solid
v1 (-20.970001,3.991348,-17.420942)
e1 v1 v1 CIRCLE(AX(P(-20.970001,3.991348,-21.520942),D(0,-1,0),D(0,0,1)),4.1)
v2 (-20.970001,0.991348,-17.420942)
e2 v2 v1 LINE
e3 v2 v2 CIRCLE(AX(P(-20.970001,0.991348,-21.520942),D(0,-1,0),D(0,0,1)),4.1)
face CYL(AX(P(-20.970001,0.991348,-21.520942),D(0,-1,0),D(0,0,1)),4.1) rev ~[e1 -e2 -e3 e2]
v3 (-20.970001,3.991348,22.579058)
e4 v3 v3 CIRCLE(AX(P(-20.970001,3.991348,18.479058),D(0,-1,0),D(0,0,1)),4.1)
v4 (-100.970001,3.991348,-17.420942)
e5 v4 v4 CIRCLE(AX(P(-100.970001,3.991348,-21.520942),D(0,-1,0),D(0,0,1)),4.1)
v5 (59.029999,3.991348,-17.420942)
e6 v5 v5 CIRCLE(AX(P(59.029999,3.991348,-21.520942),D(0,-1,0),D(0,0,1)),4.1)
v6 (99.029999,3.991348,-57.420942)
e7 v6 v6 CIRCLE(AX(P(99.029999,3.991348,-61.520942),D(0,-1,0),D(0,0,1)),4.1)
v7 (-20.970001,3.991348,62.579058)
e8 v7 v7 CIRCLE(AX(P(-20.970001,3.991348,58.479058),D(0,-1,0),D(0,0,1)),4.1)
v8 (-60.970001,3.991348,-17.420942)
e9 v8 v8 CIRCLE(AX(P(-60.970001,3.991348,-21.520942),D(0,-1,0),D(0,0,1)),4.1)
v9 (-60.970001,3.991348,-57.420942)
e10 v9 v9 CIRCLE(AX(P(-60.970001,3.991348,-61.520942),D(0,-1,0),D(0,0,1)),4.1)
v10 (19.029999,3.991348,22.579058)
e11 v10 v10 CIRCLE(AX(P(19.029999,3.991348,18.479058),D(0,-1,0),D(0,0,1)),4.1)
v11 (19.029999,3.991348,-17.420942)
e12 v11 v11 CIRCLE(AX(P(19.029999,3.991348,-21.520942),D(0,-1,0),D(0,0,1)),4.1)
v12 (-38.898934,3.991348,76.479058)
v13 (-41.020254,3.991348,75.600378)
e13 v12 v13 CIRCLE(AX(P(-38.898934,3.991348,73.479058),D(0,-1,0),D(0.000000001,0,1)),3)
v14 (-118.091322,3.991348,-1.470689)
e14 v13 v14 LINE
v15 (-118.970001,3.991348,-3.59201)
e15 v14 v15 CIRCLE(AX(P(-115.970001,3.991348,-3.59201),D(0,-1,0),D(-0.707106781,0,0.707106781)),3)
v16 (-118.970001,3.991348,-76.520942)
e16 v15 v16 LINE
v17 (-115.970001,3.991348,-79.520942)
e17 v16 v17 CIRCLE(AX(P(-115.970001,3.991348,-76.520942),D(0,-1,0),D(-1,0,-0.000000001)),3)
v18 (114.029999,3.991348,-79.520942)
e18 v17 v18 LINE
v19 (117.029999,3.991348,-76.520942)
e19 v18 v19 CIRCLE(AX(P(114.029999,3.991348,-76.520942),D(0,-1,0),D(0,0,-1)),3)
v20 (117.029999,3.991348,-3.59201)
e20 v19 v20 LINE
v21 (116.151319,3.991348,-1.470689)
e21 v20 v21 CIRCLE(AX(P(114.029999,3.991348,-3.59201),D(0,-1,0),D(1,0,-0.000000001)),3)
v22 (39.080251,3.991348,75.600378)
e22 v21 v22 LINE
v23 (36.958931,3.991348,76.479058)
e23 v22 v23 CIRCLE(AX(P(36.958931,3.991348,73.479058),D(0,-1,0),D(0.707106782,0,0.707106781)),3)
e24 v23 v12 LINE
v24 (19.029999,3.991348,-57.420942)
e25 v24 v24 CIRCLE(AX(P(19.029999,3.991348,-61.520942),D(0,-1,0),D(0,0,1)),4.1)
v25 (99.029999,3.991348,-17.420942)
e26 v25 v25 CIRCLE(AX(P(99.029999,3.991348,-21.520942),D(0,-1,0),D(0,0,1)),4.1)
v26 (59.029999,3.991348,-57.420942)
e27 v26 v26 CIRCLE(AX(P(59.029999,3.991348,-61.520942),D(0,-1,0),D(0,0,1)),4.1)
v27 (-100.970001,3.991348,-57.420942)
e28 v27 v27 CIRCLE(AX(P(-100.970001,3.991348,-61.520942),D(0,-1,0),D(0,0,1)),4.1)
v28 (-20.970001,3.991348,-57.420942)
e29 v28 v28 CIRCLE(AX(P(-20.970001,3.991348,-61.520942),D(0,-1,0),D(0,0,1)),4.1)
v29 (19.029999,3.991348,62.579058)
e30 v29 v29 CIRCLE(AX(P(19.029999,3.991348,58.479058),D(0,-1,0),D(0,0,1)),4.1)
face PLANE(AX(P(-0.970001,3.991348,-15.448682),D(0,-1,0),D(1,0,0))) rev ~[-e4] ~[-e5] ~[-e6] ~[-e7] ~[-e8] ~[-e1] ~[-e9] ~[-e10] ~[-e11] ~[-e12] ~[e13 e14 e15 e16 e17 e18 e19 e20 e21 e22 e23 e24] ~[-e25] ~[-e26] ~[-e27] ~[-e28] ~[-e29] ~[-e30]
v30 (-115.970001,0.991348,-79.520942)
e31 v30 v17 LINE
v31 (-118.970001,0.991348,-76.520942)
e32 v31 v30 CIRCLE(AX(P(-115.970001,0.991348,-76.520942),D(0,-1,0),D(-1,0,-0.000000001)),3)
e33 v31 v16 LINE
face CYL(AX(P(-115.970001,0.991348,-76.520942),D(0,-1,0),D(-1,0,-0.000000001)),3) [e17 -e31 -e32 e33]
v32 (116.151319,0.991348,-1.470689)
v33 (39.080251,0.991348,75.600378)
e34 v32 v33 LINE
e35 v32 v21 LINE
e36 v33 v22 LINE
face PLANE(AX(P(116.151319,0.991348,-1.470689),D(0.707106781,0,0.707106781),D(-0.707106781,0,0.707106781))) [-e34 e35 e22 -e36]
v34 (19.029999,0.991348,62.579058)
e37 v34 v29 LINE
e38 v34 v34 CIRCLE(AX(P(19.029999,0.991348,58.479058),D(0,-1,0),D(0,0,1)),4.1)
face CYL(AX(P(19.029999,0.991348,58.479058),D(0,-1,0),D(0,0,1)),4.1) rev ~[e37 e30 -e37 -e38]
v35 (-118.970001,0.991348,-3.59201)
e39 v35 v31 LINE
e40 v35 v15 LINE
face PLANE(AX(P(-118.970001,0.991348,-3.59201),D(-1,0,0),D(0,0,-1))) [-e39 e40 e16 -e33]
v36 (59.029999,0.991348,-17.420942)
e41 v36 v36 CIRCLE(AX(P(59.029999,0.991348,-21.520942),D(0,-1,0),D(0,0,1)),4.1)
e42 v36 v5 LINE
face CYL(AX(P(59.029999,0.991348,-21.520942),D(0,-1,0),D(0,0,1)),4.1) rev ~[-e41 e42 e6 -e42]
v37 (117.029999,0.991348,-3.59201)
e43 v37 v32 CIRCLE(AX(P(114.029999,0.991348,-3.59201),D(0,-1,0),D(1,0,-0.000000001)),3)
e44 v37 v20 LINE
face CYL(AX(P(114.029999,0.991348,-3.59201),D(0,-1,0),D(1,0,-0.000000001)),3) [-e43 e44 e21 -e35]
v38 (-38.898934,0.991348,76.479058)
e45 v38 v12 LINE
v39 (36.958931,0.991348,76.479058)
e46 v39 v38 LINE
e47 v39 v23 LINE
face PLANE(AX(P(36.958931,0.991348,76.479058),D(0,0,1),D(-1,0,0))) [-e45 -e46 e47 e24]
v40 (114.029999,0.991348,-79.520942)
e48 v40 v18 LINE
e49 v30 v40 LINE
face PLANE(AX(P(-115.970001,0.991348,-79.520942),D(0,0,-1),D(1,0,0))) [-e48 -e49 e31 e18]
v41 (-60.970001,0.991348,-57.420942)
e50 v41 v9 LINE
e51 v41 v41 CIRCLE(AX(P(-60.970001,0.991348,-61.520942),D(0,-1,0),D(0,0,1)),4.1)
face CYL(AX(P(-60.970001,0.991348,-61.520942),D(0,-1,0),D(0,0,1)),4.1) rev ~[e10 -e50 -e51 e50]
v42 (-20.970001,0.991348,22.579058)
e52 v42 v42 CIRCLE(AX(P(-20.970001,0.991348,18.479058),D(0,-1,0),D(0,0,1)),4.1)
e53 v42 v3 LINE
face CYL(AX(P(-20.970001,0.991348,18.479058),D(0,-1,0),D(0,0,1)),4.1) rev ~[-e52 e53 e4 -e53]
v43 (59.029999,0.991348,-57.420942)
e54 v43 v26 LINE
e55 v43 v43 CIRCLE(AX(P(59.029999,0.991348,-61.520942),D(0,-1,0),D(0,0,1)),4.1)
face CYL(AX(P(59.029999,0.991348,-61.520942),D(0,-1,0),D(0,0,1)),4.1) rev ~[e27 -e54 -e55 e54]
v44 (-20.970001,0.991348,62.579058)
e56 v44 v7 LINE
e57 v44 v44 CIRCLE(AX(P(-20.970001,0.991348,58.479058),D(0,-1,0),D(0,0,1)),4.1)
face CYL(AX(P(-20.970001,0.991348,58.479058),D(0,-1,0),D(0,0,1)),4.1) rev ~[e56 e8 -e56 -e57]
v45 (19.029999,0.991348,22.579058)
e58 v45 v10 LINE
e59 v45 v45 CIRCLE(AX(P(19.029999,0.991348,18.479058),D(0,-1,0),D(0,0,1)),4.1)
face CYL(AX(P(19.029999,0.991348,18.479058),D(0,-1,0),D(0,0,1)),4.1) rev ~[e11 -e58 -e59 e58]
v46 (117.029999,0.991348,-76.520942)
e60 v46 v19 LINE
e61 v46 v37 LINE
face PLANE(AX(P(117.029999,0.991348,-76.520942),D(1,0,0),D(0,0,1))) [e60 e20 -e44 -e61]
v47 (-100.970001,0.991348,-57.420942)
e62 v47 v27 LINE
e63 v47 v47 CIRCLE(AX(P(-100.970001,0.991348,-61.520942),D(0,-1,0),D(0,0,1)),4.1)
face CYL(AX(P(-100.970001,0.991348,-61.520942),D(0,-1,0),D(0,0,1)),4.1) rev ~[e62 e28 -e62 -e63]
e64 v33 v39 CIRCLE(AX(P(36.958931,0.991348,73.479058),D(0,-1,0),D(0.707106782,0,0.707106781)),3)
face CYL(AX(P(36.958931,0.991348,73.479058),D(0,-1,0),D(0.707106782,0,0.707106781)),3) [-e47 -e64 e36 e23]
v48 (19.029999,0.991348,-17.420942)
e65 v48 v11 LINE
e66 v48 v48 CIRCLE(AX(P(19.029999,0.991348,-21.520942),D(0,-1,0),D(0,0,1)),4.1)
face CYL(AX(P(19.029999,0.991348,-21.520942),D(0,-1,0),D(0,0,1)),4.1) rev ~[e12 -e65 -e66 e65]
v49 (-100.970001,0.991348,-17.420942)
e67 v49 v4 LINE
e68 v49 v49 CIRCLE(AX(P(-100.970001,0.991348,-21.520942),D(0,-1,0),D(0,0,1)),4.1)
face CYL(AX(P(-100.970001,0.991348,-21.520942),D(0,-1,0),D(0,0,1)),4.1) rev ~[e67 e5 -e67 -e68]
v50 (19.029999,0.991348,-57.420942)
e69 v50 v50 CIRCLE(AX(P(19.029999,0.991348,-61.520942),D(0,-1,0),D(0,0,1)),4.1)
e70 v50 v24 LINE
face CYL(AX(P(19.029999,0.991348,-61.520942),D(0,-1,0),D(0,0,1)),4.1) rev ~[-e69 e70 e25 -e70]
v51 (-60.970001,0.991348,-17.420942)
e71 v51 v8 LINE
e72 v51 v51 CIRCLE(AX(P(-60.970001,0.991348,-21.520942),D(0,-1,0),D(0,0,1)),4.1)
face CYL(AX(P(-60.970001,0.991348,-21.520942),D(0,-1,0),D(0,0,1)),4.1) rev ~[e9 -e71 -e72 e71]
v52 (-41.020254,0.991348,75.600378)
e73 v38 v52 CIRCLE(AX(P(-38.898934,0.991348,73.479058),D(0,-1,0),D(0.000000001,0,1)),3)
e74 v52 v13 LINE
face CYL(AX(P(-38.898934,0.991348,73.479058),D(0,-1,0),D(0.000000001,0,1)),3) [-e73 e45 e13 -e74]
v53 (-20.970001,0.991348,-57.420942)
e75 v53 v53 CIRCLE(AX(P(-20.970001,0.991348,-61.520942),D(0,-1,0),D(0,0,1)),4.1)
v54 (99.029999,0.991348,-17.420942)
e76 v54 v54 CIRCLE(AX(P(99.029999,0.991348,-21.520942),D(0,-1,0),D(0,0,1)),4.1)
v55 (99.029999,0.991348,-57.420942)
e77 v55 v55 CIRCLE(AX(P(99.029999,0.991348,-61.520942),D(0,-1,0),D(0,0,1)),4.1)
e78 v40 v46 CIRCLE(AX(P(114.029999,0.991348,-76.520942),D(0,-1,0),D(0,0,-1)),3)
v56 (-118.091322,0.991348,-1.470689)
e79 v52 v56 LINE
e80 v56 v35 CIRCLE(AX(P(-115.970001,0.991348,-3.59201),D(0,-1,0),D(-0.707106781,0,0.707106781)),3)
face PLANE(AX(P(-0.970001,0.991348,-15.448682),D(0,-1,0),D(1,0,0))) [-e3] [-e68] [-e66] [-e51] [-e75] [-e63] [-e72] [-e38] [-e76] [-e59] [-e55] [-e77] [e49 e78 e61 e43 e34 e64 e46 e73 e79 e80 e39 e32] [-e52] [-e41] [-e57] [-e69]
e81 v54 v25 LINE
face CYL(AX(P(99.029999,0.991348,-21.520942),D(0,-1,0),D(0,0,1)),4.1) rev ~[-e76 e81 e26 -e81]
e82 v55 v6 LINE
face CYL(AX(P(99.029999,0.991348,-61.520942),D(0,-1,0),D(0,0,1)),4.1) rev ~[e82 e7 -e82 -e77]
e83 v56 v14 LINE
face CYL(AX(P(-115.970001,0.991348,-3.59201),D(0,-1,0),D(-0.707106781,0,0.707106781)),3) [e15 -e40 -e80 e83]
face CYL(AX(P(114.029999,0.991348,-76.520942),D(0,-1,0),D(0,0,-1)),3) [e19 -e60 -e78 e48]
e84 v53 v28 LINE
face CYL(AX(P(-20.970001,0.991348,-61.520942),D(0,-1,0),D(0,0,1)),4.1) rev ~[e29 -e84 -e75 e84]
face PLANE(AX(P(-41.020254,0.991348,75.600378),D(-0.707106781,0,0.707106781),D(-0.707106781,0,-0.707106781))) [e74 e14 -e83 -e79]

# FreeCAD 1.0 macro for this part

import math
import FreeCAD as App
import Part
import Sketcher
Q = App.Units.Quantity

doc = App.newDocument("Part")
body = doc.addObject("PartDesign::Body", "Body")

# Sketch on XZ plane
sketch1 = body.newObject("Sketcher::SketchObject", "Sketch")
sketch1.AttachmentSupport = (doc.getObject("XZ_Plane"), [""])
sketch1.MapMode = "FlatFace"
sketch1.AttachmentOffset = App.Placement(App.Vector(0, 0, -0.991348), App.Rotation())
sketch1.addGeometry([
    Part.LineSegment(App.Vector(37, 76.5, 0), App.Vector(-38.9, 76.5, 0)),  # 0
    Part.ArcOfCircle(Part.Circle(App.Vector(-38.9, 73.5, 0), App.Vector(0, 0, 1), 3), math.radians(90), math.radians(135)),  # 1
    Part.LineSegment(App.Vector(-41, 75.6, 0), App.Vector(-118.1, -1.5, 0)),  # 2
    Part.ArcOfCircle(Part.Circle(App.Vector(-116, -3.6, 0), App.Vector(0, 0, 1), 3), math.radians(135), math.radians(180)),  # 3
    Part.LineSegment(App.Vector(-119, -3.6, 0), App.Vector(-119, -76.5, 0)),  # 4
    Part.ArcOfCircle(Part.Circle(App.Vector(-116, -76.5, 0), App.Vector(0, 0, 1), 3), math.radians(-180), math.radians(-90)),  # 5
    Part.LineSegment(App.Vector(-116, -79.5, 0), App.Vector(114, -79.5, 0)),  # 6
    Part.ArcOfCircle(Part.Circle(App.Vector(114, -76.5, 0), App.Vector(0, 0, 1), 3), math.radians(-90), math.radians(0)),  # 7
    Part.LineSegment(App.Vector(117, -76.5, 0), App.Vector(117, -3.6, 0)),  # 8
    Part.ArcOfCircle(Part.Circle(App.Vector(114, -3.6, 0), App.Vector(0, 0, 1), 3), math.radians(0), math.radians(45)),  # 9
    Part.LineSegment(App.Vector(116.2, -1.5, 0), App.Vector(39.1, 75.6, 0)),  # 10
    Part.ArcOfCircle(Part.Circle(App.Vector(37, 73.5, 0), App.Vector(0, 0, 1), 3), math.radians(45), math.radians(90)),  # 11
    Part.Circle(App.Vector(-101, -61.5, 0), App.Vector(0, 0, 1), 4.1),  # 12
    Part.Circle(App.Vector(-61, -61.5, 0), App.Vector(0, 0, 1), 4.1),  # 13
    Part.Circle(App.Vector(-21, -61.5, 0), App.Vector(0, 0, 1), 4.1),  # 14
    Part.Circle(App.Vector(-101, -21.5, 0), App.Vector(0, 0, 1), 4.1),  # 15
    Part.Circle(App.Vector(-61, -21.5, 0), App.Vector(0, 0, 1), 4.1),  # 16
    Part.Circle(App.Vector(-21, -21.5, 0), App.Vector(0, 0, 1), 4.1),  # 17
    Part.Circle(App.Vector(19, -61.5, 0), App.Vector(0, 0, 1), 4.1),  # 18
    Part.Circle(App.Vector(59, -61.5, 0), App.Vector(0, 0, 1), 4.1),  # 19
    Part.Circle(App.Vector(99, -61.5, 0), App.Vector(0, 0, 1), 4.1),  # 20
    Part.Circle(App.Vector(19, -21.5, 0), App.Vector(0, 0, 1), 4.1),  # 21
    Part.Circle(App.Vector(59, -21.5, 0), App.Vector(0, 0, 1), 4.1),  # 22
    Part.Circle(App.Vector(99, -21.5, 0), App.Vector(0, 0, 1), 4.1),  # 23
    Part.Circle(App.Vector(-21, 18.5, 0), App.Vector(0, 0, 1), 4.1),  # 24
    Part.Circle(App.Vector(-21, 58.5, 0), App.Vector(0, 0, 1), 4.1),  # 25
    Part.Circle(App.Vector(19, 18.5, 0), App.Vector(0, 0, 1), 4.1),  # 26
    Part.Circle(App.Vector(19, 58.5, 0), App.Vector(0, 0, 1), 4.1),  # 27
], False)
sketch1.addConstraint([
    Sketcher.Constraint("Tangent", 0, 2, 1, 1),
    Sketcher.Constraint("Tangent", 1, 2, 2, 1),
    Sketcher.Constraint("Tangent", 2, 2, 3, 1),
    Sketcher.Constraint("Tangent", 3, 2, 4, 1),
    Sketcher.Constraint("Tangent", 4, 2, 5, 1),
    Sketcher.Constraint("Tangent", 5, 2, 6, 1),
    Sketcher.Constraint("Tangent", 6, 2, 7, 1),
    Sketcher.Constraint("Tangent", 7, 2, 8, 1),
    Sketcher.Constraint("Tangent", 8, 2, 9, 1),
    Sketcher.Constraint("Tangent", 9, 2, 10, 1),
    Sketcher.Constraint("Tangent", 10, 2, 11, 1),
    Sketcher.Constraint("Tangent", 11, 2, 0, 1),
    Sketcher.Constraint("Horizontal", 0),
    Sketcher.Constraint("Vertical", 4),
    Sketcher.Constraint("Horizontal", 6),
    Sketcher.Constraint("Vertical", 8),
    Sketcher.Constraint("Equal", 1, 3),
    Sketcher.Constraint("Equal", 3, 5),
    Sketcher.Constraint("Equal", 5, 7),
    Sketcher.Constraint("Equal", 7, 9),
    Sketcher.Constraint("Equal", 9, 11),
    Sketcher.Constraint("Equal", 12, 13),
    Sketcher.Constraint("Equal", 13, 14),
    Sketcher.Constraint("Equal", 14, 15),
    Sketcher.Constraint("Equal", 15, 16),
    Sketcher.Constraint("Equal", 16, 17),
    Sketcher.Constraint("Equal", 17, 18),
    Sketcher.Constraint("Equal", 18, 19),
    Sketcher.Constraint("Equal", 19, 20),
    Sketcher.Constraint("Equal", 20, 21),
    Sketcher.Constraint("Equal", 21, 22),
    Sketcher.Constraint("Equal", 22, 23),
    Sketcher.Constraint("Equal", 23, 24),
    Sketcher.Constraint("Equal", 24, 25),
    Sketcher.Constraint("Equal", 25, 26),
    Sketcher.Constraint("Equal", 26, 27),
    Sketcher.Constraint("Perpendicular", 2, 10),
    Sketcher.Constraint("Horizontal", 3, 3, 9, 3),
    Sketcher.Constraint("Horizontal", 12, 3, 13, 3),
    Sketcher.Constraint("Horizontal", 13, 3, 14, 3),
    Sketcher.Constraint("Horizontal", 15, 3, 16, 3),
    Sketcher.Constraint("Horizontal", 16, 3, 17, 3),
    Sketcher.Constraint("Horizontal", 14, 3, 18, 3),
    Sketcher.Constraint("Horizontal", 18, 3, 19, 3),
    Sketcher.Constraint("Horizontal", 19, 3, 20, 3),
    Sketcher.Constraint("Horizontal", 17, 3, 21, 3),
    Sketcher.Constraint("Horizontal", 21, 3, 22, 3),
    Sketcher.Constraint("Horizontal", 22, 3, 23, 3),
    Sketcher.Constraint("Horizontal", 24, 3, 26, 3),
    Sketcher.Constraint("Horizontal", 25, 3, 27, 3),
    Sketcher.Constraint("Horizontal", 2, 2, 9, 2),
    Sketcher.Constraint("Vertical", 12, 3, 15, 3),
    Sketcher.Constraint("Vertical", 13, 3, 16, 3),
    Sketcher.Constraint("Vertical", 14, 3, 17, 3),
    Sketcher.Constraint("Vertical", 18, 3, 21, 3),
    Sketcher.Constraint("Vertical", 19, 3, 22, 3),
    Sketcher.Constraint("Vertical", 20, 3, 23, 3),
    Sketcher.Constraint("Vertical", 17, 3, 24, 3),
    Sketcher.Constraint("Vertical", 24, 3, 25, 3),
    Sketcher.Constraint("Vertical", 21, 3, 26, 3),
    Sketcher.Constraint("Vertical", 26, 3, 27, 3),
    Sketcher.Constraint("Radius", 1, Q("3 mm")),
    Sketcher.Constraint("Diameter", 12, Q("8.2 mm")),
    Sketcher.Constraint("DistanceX", 6, 1, 6, 2, Q("230 mm")),
    Sketcher.Constraint("DistanceY", 5, 3, 1, 3, Q("150 mm")),
    Sketcher.Constraint("DistanceX", 5, 3, 12, 3, Q("15 mm")),
    Sketcher.Constraint("DistanceY", 5, 3, 12, 3, Q("15 mm")),
    Sketcher.Constraint("DistanceX", 12, 3, 13, 3, Q("40 mm")),
    Sketcher.Constraint("DistanceX", 13, 3, 14, 3, Q("40 mm")),
    Sketcher.Constraint("DistanceY", 12, 3, 15, 3, Q("40 mm")),
    Sketcher.Constraint("DistanceX", 14, 3, 18, 3, Q("40 mm")),
    Sketcher.Constraint("DistanceX", 18, 3, 19, 3, Q("40 mm")),
    Sketcher.Constraint("DistanceX", 20, 3, 7, 3, Q("15 mm")),
    Sketcher.Constraint("DistanceY", 17, 3, 24, 3, Q("40 mm")),
    Sketcher.Constraint("DistanceY", 25, 3, 1, 3, Q("15 mm")),
    Sketcher.Constraint("DistanceX", 3, 3, -1, 1, Q("115.970001 mm")),
    Sketcher.Constraint("Distance", 2, Q("108.994949 mm")),
    Sketcher.Constraint("DistanceY", -1, 1, 1, 3, Q("73.479058 mm")),
])
pad1 = body.newObject("PartDesign::Pad", "Pad")
pad1.Profile = sketch1
pad1.Length = 3
pad1.Reversed = True

doc.recompute()
